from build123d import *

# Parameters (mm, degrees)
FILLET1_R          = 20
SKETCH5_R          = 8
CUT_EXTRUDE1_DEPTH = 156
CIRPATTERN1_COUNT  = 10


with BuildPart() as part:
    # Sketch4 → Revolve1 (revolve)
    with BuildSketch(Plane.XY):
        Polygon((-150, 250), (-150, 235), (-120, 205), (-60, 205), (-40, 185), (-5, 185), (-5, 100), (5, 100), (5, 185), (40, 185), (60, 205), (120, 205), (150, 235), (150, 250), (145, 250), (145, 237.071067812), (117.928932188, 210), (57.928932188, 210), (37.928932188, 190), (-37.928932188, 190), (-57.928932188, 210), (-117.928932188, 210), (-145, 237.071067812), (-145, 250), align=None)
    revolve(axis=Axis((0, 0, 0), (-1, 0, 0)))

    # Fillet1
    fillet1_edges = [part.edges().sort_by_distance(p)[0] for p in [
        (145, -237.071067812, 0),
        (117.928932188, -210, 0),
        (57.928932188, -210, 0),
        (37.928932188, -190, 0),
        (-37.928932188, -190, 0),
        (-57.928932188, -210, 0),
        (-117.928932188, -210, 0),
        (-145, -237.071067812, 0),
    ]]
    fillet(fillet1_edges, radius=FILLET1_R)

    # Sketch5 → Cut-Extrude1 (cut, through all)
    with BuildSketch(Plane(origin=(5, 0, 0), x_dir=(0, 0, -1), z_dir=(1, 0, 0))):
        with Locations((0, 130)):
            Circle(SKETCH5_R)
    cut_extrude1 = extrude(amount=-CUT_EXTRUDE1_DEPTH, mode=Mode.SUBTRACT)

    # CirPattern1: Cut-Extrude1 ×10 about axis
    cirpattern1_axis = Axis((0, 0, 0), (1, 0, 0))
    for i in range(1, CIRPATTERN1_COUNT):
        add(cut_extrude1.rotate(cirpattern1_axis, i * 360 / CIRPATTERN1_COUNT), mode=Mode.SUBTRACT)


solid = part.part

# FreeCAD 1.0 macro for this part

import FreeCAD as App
import Part
import Sketcher
from FreeCAD import Vector
Q = App.Units.Quantity


def edges_at(feature, points):
    """Names of the edges that pass closest to the given points."""
    edges = feature.Shape.Edges
    near = lambda p: min(range(len(edges)), key=lambda i: edges[i].distToShape(Part.Vertex(*p))[0])
    return sorted({f"Edge{near(p) + 1}" for p in points})

doc = App.newDocument("Part")
body = doc.addObject("PartDesign::Body", "Body")

sketch1 = body.newObject("Sketcher::SketchObject", "Sketch")
sketch1.AttachmentSupport = (doc.getObject("XY_Plane"), [""])
sketch1.MapMode = "FlatFace"
sketch1.addGeometry([
    Part.LineSegment(Vector(-150, 250, 0), Vector(-150, 235, 0)),
    Part.LineSegment(Vector(-150, 235, 0), Vector(-120, 205, 0)),
    Part.LineSegment(Vector(-120, 205, 0), Vector(-60, 205, 0)),
    Part.LineSegment(Vector(-60, 205, 0), Vector(-40, 185, 0)),
    Part.LineSegment(Vector(-40, 185, 0), Vector(-5, 185, 0)),
    Part.LineSegment(Vector(-5, 185, 0), Vector(-5, 100, 0)),
    Part.LineSegment(Vector(-5, 100, 0), Vector(5, 100, 0)),
    Part.LineSegment(Vector(5, 100, 0), Vector(5, 185, 0)),
    Part.LineSegment(Vector(5, 185, 0), Vector(40, 185, 0)),
    Part.LineSegment(Vector(40, 185, 0), Vector(60, 205, 0)),
    Part.LineSegment(Vector(60, 205, 0), Vector(120, 205, 0)),
    Part.LineSegment(Vector(120, 205, 0), Vector(150, 235, 0)),
    Part.LineSegment(Vector(150, 235, 0), Vector(150, 250, 0)),
    Part.LineSegment(Vector(150, 250, 0), Vector(145, 250, 0)),
    Part.LineSegment(Vector(145, 250, 0), Vector(145, 237.071068, 0)),
    Part.LineSegment(Vector(145, 237.071068, 0), Vector(117.928932, 210, 0)),
    Part.LineSegment(Vector(117.928932, 210, 0), Vector(57.928932, 210, 0)),
    Part.LineSegment(Vector(57.928932, 210, 0), Vector(37.928932, 190, 0)),
    Part.LineSegment(Vector(37.928932, 190, 0), Vector(-37.928932, 190, 0)),
    Part.LineSegment(Vector(-37.928932, 190, 0), Vector(-57.928932, 210, 0)),
    Part.LineSegment(Vector(-57.928932, 210, 0), Vector(-117.928932, 210, 0)),
    Part.LineSegment(Vector(-117.928932, 210, 0), Vector(-145, 237.071068, 0)),
    Part.LineSegment(Vector(-145, 237.071068, 0), Vector(-145, 250, 0)),
    Part.LineSegment(Vector(-145, 250, 0), Vector(-150, 250, 0)),
], False)
sketch1.addConstraint([
    Sketcher.Constraint("Coincident", 0, 2, 1, 1),
    Sketcher.Constraint("Coincident", 1, 2, 2, 1),
    Sketcher.Constraint("Coincident", 2, 2, 3, 1),
    Sketcher.Constraint("Coincident", 3, 2, 4, 1),
    Sketcher.Constraint("Coincident", 4, 2, 5, 1),
    Sketcher.Constraint("Coincident", 5, 2, 6, 1),
    Sketcher.Constraint("Coincident", 6, 2, 7, 1),
    Sketcher.Constraint("Coincident", 7, 2, 8, 1),
    Sketcher.Constraint("Coincident", 8, 2, 9, 1),
    Sketcher.Constraint("Coincident", 9, 2, 10, 1),
    Sketcher.Constraint("Coincident", 10, 2, 11, 1),
    Sketcher.Constraint("Coincident", 11, 2, 12, 1),
    Sketcher.Constraint("Coincident", 12, 2, 13, 1),
    Sketcher.Constraint("Coincident", 13, 2, 14, 1),
    Sketcher.Constraint("Coincident", 14, 2, 15, 1),
    Sketcher.Constraint("Coincident", 15, 2, 16, 1),
    Sketcher.Constraint("Coincident", 16, 2, 17, 1),
    Sketcher.Constraint("Coincident", 17, 2, 18, 1),
    Sketcher.Constraint("Coincident", 18, 2, 19, 1),
    Sketcher.Constraint("Coincident", 19, 2, 20, 1),
    Sketcher.Constraint("Coincident", 20, 2, 21, 1),
    Sketcher.Constraint("Coincident", 21, 2, 22, 1),
    Sketcher.Constraint("Coincident", 22, 2, 23, 1),
    Sketcher.Constraint("Coincident", 23, 2, 0, 1),
    Sketcher.Constraint("Vertical", 0),
    Sketcher.Constraint("Horizontal", 2),
    Sketcher.Constraint("Horizontal", 4),
    Sketcher.Constraint("Vertical", 5),
    Sketcher.Constraint("Horizontal", 6),
    Sketcher.Constraint("Vertical", 7),
    Sketcher.Constraint("Horizontal", 8),
    Sketcher.Constraint("Horizontal", 10),
    Sketcher.Constraint("Vertical", 12),
    Sketcher.Constraint("Horizontal", 13),
    Sketcher.Constraint("Vertical", 14),
    Sketcher.Constraint("Horizontal", 16),
    Sketcher.Constraint("Horizontal", 18),
    Sketcher.Constraint("Horizontal", 20),
    Sketcher.Constraint("Vertical", 22),
    Sketcher.Constraint("Horizontal", 23),
    Sketcher.Constraint("Symmetric", 4, 2, 7, 2, -2),
    Sketcher.Constraint("Symmetric", 2, 2, 9, 2, -2),
    Sketcher.Constraint("Symmetric", 0, 2, 11, 2, -2),
    Sketcher.Constraint("Symmetric", 16, 2, 19, 2, -2),
    Sketcher.Constraint("Symmetric", 14, 2, 21, 2, -2),
    Sketcher.Constraint("Parallel", 1, 3),
    Sketcher.Constraint("Perpendicular", 3, 9),
    Sketcher.Constraint("Parallel", 9, 11),
    Sketcher.Constraint("Parallel", 11, 15),
    Sketcher.Constraint("Parallel", 15, 17),
    Sketcher.Constraint("Perpendicular", 17, 19),
    Sketcher.Constraint("Parallel", 19, 21),
    Sketcher.Constraint("Horizontal", 13, 2, 22, 2),
    Sketcher.Constraint("Equal", 4, 8),
    Sketcher.Constraint("Equal", 10, 16),
    Sketcher.Constraint("Equal", 9, 17),
    Sketcher.Constraint("DistanceX", 2, 1, 2, 2, Q("60 mm")),
    Sketcher.Constraint("DistanceX", 4, 1, 4, 2, Q("35 mm")),
    Sketcher.Constraint("DistanceX", 6, 1, 6, 2, Q("10 mm")),
    Sketcher.Constraint("DistanceX", 13, 2, 13, 1, Q("5 mm")),
    Sketcher.Constraint("DistanceY", 0, 2, 0, 1, Q("15 mm")),
    Sketcher.Constraint("DistanceY", 5, 2, 5, 1, Q("85 mm")),
    Sketcher.Constraint("DistanceX", 0, 2, -1, 1, Q("150 mm")),
    Sketcher.Constraint("DistanceY", -1, 1, 0, 2, Q("235 mm")),
    Sketcher.Constraint("DistanceX", 1, 2, -1, 1, Q("120 mm")),
    Sketcher.Constraint("DistanceY", -1, 1, 15, 2, Q("210 mm")),
    Sketcher.Constraint("Distance", 15, Q("38.284271 mm")),
])
revolution = body.newObject("PartDesign::Revolution", "Revolution")
revolution.Profile = sketch1
revolution.ReferenceAxis = (sketch1, ["H_Axis"])
revolution.Angle = 360
doc.recompute()

fillet = body.newObject("PartDesign::Fillet", "Fillet")
fillet.Base = (revolution, edges_at(revolution, [
    (145, -237.071, 0),
    (117.929, -210, 0),
    (57.929, -210, 0),
    (37.929, -190, 0),
    (-37.929, -190, 0),
    (-57.929, -210, 0),
    (-117.929, -210, 0),
    (-145, -237.071, 0),
]))
fillet.Radius = 20

sketch2 = body.newObject("Sketcher::SketchObject", "Sketch001")
sketch2.AttachmentSupport = (doc.getObject("YZ_Plane"), [""])
sketch2.MapMode = "FlatFace"
sketch2.AttachmentOffset = App.Placement(Vector(0, 0, 5), App.Rotation())
sketch2.addGeometry(Part.Circle(Vector(130, 0, 0), Vector(0, 0, 1), 8), False)
sketch2.addConstraint([
    Sketcher.Constraint("PointOnObject", 0, 3, -1),
    Sketcher.Constraint("Diameter", 0, Q("16 mm")),
    Sketcher.Constraint("DistanceX", -1, 1, 0, 3, Q("130 mm")),
])
pocket1 = body.newObject("PartDesign::Pocket", "Pocket")
pocket1.Profile = sketch2
pocket1.Type = "ThroughAll"
doc.recompute()

polarpattern = body.newObject("PartDesign::PolarPattern", "PolarPattern")
polarpattern.Originals = [pocket1]
polarpattern.Axis = (doc.getObject("X_Axis"), [""])
polarpattern.Angle = 360
polarpattern.Occurrences = 10
body.Tip = polarpattern

doc.recompute()
